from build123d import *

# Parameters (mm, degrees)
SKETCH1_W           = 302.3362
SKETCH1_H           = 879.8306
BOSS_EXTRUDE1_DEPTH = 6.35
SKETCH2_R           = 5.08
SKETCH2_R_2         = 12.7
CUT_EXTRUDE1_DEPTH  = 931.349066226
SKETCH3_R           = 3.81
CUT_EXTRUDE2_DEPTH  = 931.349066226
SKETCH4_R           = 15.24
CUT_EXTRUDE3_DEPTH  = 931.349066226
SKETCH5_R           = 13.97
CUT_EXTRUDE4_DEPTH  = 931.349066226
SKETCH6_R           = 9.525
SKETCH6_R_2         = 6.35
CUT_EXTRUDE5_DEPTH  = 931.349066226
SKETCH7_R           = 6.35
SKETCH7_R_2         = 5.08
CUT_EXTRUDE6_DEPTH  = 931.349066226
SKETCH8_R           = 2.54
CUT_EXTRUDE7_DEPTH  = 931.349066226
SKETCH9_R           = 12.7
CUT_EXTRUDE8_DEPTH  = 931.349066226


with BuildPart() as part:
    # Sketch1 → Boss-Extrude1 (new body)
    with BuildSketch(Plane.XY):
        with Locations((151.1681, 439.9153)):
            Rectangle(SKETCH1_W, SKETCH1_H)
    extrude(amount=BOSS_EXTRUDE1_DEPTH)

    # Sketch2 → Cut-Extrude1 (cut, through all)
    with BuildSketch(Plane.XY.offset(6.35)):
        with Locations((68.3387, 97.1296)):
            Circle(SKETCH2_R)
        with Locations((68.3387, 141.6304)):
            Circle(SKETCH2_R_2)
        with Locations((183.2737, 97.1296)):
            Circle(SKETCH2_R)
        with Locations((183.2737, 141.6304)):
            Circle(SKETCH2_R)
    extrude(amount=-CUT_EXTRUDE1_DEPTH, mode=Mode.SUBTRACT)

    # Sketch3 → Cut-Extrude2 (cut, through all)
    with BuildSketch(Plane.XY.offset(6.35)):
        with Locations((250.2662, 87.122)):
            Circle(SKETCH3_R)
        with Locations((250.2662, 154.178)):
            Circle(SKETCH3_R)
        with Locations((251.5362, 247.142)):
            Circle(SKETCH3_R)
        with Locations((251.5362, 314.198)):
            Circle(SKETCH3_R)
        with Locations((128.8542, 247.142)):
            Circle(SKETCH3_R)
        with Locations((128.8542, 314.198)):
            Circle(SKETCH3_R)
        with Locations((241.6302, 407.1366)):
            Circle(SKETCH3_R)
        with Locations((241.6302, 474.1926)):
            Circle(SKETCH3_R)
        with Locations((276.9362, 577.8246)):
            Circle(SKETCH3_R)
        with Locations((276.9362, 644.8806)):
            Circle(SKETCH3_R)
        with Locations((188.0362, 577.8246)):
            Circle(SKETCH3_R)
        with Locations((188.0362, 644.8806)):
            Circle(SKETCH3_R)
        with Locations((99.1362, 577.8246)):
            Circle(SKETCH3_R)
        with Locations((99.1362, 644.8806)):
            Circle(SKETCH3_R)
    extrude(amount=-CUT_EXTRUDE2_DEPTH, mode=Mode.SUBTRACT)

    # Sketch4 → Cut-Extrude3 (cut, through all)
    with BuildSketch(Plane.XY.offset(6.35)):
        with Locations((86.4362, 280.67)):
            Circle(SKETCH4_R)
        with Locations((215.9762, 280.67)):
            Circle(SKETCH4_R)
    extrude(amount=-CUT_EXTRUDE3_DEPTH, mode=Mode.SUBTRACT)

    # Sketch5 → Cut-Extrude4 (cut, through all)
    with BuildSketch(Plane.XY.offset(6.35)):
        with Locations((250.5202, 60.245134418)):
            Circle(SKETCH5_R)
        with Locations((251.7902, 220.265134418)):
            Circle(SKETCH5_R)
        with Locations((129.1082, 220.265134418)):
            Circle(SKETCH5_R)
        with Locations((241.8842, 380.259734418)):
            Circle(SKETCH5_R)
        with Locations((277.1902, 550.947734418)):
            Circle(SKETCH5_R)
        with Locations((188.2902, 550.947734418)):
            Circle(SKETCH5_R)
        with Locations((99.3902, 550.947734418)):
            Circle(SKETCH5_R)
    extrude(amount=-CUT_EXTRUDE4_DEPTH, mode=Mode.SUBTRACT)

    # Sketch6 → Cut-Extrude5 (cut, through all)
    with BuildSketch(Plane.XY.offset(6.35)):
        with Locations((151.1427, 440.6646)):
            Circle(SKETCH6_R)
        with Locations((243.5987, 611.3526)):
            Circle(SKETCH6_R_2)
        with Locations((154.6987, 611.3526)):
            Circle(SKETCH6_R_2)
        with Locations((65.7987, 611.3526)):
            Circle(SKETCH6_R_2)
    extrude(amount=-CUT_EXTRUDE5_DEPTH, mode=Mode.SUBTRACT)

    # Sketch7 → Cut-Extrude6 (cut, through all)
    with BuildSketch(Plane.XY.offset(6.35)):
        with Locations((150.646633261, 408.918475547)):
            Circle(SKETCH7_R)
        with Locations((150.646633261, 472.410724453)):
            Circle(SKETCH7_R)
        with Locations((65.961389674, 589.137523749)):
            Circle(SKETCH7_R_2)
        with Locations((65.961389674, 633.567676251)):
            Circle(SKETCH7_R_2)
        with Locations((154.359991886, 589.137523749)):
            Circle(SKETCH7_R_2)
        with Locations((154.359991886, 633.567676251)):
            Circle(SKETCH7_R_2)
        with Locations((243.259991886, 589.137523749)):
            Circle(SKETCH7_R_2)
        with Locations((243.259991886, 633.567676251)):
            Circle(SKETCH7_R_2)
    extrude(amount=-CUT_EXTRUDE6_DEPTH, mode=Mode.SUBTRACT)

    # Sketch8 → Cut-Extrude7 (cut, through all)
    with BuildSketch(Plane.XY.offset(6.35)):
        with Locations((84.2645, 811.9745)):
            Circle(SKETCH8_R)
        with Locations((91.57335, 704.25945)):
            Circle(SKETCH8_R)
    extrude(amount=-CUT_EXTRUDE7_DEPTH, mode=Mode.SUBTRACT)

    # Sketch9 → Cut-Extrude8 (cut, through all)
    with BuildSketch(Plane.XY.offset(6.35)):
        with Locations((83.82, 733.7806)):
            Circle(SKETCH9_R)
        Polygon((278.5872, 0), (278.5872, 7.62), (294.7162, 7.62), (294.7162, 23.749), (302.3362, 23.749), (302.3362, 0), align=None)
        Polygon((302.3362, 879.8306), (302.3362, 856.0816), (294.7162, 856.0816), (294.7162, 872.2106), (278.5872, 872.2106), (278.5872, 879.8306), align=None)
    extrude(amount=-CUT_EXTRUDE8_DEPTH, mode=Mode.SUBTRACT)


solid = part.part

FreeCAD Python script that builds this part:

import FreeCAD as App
import Part
import Sketcher

V = App.Vector
Q = App.Units.Quantity


def add_polygon(sketch, points):
    """Adds a closed chain of lines whose ends are joined by coincident constraints."""
    first, n = sketch.GeometryCount, len(points)
    for a, b in zip(points, points[1:] + points[:1]):
        sketch.addGeometry(Part.LineSegment(App.Vector(*a, 0), App.Vector(*b, 0)), False)
    for i in range(n):
        sketch.addConstraint(Sketcher.Constraint("Coincident", first + i, 2, first + (i + 1) % n, 1))

doc = App.newDocument("Part")
body = doc.addObject("PartDesign::Body", "Body")

# Sketch on XY plane
sketch1 = doc.addObject("Sketcher::SketchObject", "Sketch")
body.addObject(sketch1)
sketch1.AttachmentSupport = (doc.XY_Plane, [""])
sketch1.MapMode = "FlatFace"
add_polygon(sketch1, [(0, 880), (0, 0), (302, 0), (302, 880)])  # lines 0-3
sketch1.addConstraint([
    Sketcher.Constraint("Vertical", 0),
    Sketcher.Constraint("Horizontal", 1),
    Sketcher.Constraint("Vertical", 2),
    Sketcher.Constraint("Horizontal", 3),
    Sketcher.Constraint("Coincident", 0, 2, -1, 1),
    Sketcher.Constraint("DistanceX", 1, 1, 1, 2, Q("11.903 in")),
    Sketcher.Constraint("DistanceY", 0, 2, 0, 1, Q("34.639 in")),
])
pad1 = doc.addObject("PartDesign::Pad", "Pad")
body.addObject(pad1)
pad1.Profile = sketch1
pad1.Length = Q("0.25 in")

# Sketch on XY plane
sketch2 = doc.addObject("Sketcher::SketchObject", "Sketch001")
body.addObject(sketch2)
sketch2.AttachmentSupport = (doc.XY_Plane, [""])
sketch2.MapMode = "FlatFace"
sketch2.AttachmentOffset = App.Placement(V(0, 0, 0.25 * 25.4), App.Rotation())
sketch2.addGeometry([
    Part.Circle(V(68, 97, 0), V(0, 0, 1), 5),
    Part.Circle(V(68, 142, 0), V(0, 0, 1), 13),
    Part.Circle(V(183, 97, 0), V(0, 0, 1), 5),
    Part.Circle(V(183, 142, 0), V(0, 0, 1), 5),
], False)
sketch2.addConstraint([
    Sketcher.Constraint("Equal", 0, 2),
    Sketcher.Constraint("Equal", 2, 3),
    Sketcher.Constraint("Horizontal", 0, 3, 2, 3),
    Sketcher.Constraint("Horizontal", 1, 3, 3, 3),
    Sketcher.Constraint("Vertical", 0, 3, 1, 3),
    Sketcher.Constraint("Vertical", 2, 3, 3, 3),
    Sketcher.Constraint("Diameter", 1, Q("1 in")),
    Sketcher.Constraint("Diameter", 0, Q("0.4 in")),
    Sketcher.Constraint("DistanceY", -1, 1, 0, 3, Q("3.824 in")),
    Sketcher.Constraint("DistanceY", -1, 1, 1, 3, Q("5.576 in")),
    Sketcher.Constraint("DistanceX", 0, 3, 2, 3, Q("4.525 in")),
    Sketcher.Constraint("DistanceX", -1, 1, 0, 3, Q("2.6905 in")),
])
pocket1 = doc.addObject("PartDesign::Pocket", "Pocket")
body.addObject(pocket1)
pocket1.Profile = sketch2
pocket1.Type = "ThroughAll"

# Sketch on XY plane
sketch3 = doc.addObject("Sketcher::SketchObject", "Sketch002")
body.addObject(sketch3)
sketch3.AttachmentSupport = (doc.XY_Plane, [""])
sketch3.MapMode = "FlatFace"
sketch3.AttachmentOffset = App.Placement(V(0, 0, 0.25 * 25.4), App.Rotation())
sketch3.addGeometry([
    Part.Circle(V(250.3, 87.1, 0), V(0, 0, 1), 3.8),  # 0
    Part.Circle(V(250.3, 154.2, 0), V(0, 0, 1), 3.8),  # 1
    Part.Circle(V(251.5, 247.1, 0), V(0, 0, 1), 3.8),  # 2
    Part.Circle(V(251.5, 314.2, 0), V(0, 0, 1), 3.8),  # 3
    Part.Circle(V(128.9, 247.1, 0), V(0, 0, 1), 3.8),  # 4
    Part.Circle(V(128.9, 314.2, 0), V(0, 0, 1), 3.8),  # 5
    Part.Circle(V(241.6, 407.1, 0), V(0, 0, 1), 3.8),  # 6
    Part.Circle(V(241.6, 474.2, 0), V(0, 0, 1), 3.8),  # 7
    Part.Circle(V(276.9, 577.8, 0), V(0, 0, 1), 3.8),  # 8
    Part.Circle(V(276.9, 644.9, 0), V(0, 0, 1), 3.8),  # 9
    Part.Circle(V(188, 577.8, 0), V(0, 0, 1), 3.8),  # 10
    Part.Circle(V(188, 644.9, 0), V(0, 0, 1), 3.8),  # 11
    Part.Circle(V(99.1, 577.8, 0), V(0, 0, 1), 3.8),  # 12
    Part.Circle(V(99.1, 644.9, 0), V(0, 0, 1), 3.8),  # 13
], False)
sketch3.addConstraint([
    Sketcher.Constraint("Equal", 0, 1),
    Sketcher.Constraint("Equal", 1, 2),
    Sketcher.Constraint("Equal", 2, 3),
    Sketcher.Constraint("Equal", 3, 4),
    Sketcher.Constraint("Equal", 4, 5),
    Sketcher.Constraint("Equal", 5, 6),
    Sketcher.Constraint("Equal", 6, 7),
    Sketcher.Constraint("Equal", 7, 8),
    Sketcher.Constraint("Equal", 8, 9),
    Sketcher.Constraint("Equal", 9, 10),
    Sketcher.Constraint("Equal", 10, 11),
    Sketcher.Constraint("Equal", 11, 12),
    Sketcher.Constraint("Equal", 12, 13),
    Sketcher.Constraint("Horizontal", 2, 3, 4, 3),
    Sketcher.Constraint("Horizontal", 3, 3, 5, 3),
    Sketcher.Constraint("Horizontal", 8, 3, 10, 3),
    Sketcher.Constraint("Horizontal", 9, 3, 11, 3),
    Sketcher.Constraint("Horizontal", 10, 3, 12, 3),
    Sketcher.Constraint("Horizontal", 11, 3, 13, 3),
    Sketcher.Constraint("Vertical", 0, 3, 1, 3),
    Sketcher.Constraint("Vertical", 2, 3, 3, 3),
    Sketcher.Constraint("Vertical", 4, 3, 5, 3),
    Sketcher.Constraint("Vertical", 6, 3, 7, 3),
    Sketcher.Constraint("Vertical", 8, 3, 9, 3),
    Sketcher.Constraint("Vertical", 10, 3, 11, 3),
    Sketcher.Constraint("Vertical", 12, 3, 13, 3),
    Sketcher.Constraint("Diameter", 0, Q("0.3 in")),
    Sketcher.Constraint("DistanceX", 3, 3, 8, 3, Q("1 in")),
    Sketcher.Constraint("DistanceX", 12, 3, 8, 3, Q("7 in")),
    Sketcher.Constraint("DistanceY", 0, 3, 2, 3, Q("6.3 in")),
    Sketcher.Constraint("DistanceY", 1, 3, 3, 3, Q("6.3 in")),
    Sketcher.Constraint("DistanceX", 10, 3, 8, 3, Q("3.5 in")),
    Sketcher.Constraint("DistanceY", -1, 1, 0, 3, Q("3.43 in")),
    Sketcher.Constraint("DistanceY", -1, 1, 1, 3, Q("6.07 in")),
    Sketcher.Constraint("DistanceX", 1, 3, 2, 3, Q("0.05 in")),
    Sketcher.Constraint("DistanceX", 4, 3, 2, 3, Q("4.83 in")),
    Sketcher.Constraint("DistanceX", 6, 3, 3, 3, Q("0.39 in")),
    Sketcher.Constraint("DistanceY", 6, 3, 7, 3, Q("2.64 in")),
    Sketcher.Constraint("DistanceY", 7, 3, 8, 3, Q("4.08 in")),
    Sketcher.Constraint("DistanceY", 8, 3, 9, 3, Q("2.64 in")),
    Sketcher.Constraint("DistanceX", -1, 1, 0, 3, Q("9.853 in")),
    Sketcher.Constraint("DistanceY", -1, 1, 6, 3, Q("16.029 in")),
])
pocket2 = doc.addObject("PartDesign::Pocket", "Pocket001")
body.addObject(pocket2)
pocket2.Profile = sketch3
pocket2.Type = "ThroughAll"

# Sketch on XY plane
sketch4 = doc.addObject("Sketcher::SketchObject", "Sketch003")
body.addObject(sketch4)
sketch4.AttachmentSupport = (doc.XY_Plane, [""])
sketch4.MapMode = "FlatFace"
sketch4.AttachmentOffset = App.Placement(V(0, 0, 0.25 * 25.4), App.Rotation())
sketch4.addGeometry([
    Part.Circle(V(86, 281, 0), V(0, 0, 1), 15),
    Part.Circle(V(216, 281, 0), V(0, 0, 1), 15),
], False)
sketch4.addConstraint([
    Sketcher.Constraint("Equal", 0, 1),
    Sketcher.Constraint("Horizontal", 0, 3, 1, 3),
    Sketcher.Constraint("Diameter", 0, Q("1.2 in")),
    Sketcher.Constraint("DistanceX", 0, 3, 1, 3, Q("5.1 in")),
    Sketcher.Constraint("DistanceY", -1, 1, 0, 3, Q("11.05 in")),
    Sketcher.Constraint("DistanceX", -1, 1, 0, 3, Q("3.403 in")),
])
pocket3 = doc.addObject("PartDesign::Pocket", "Pocket002")
body.addObject(pocket3)
pocket3.Profile = sketch4
pocket3.Type = "ThroughAll"

# Sketch on XY plane
sketch5 = doc.addObject("Sketcher::SketchObject", "Sketch004")
body.addObject(sketch5)
sketch5.AttachmentSupport = (doc.XY_Plane, [""])
sketch5.MapMode = "FlatFace"
sketch5.AttachmentOffset = App.Placement(V(0, 0, 0.25 * 25.4), App.Rotation())
sketch5.addGeometry([
    Part.Circle(V(251, 60, 0), V(0, 0, 1), 14),  # 0
    Part.Circle(V(252, 220, 0), V(0, 0, 1), 14),  # 1
    Part.Circle(V(129, 220, 0), V(0, 0, 1), 14),  # 2
    Part.Circle(V(242, 380, 0), V(0, 0, 1), 14),  # 3
    Part.Circle(V(277, 551, 0), V(0, 0, 1), 14),  # 4
    Part.Circle(V(188, 551, 0), V(0, 0, 1), 14),  # 5
    Part.Circle(V(99, 551, 0), V(0, 0, 1), 14),  # 6
], False)
sketch5.addConstraint([
    Sketcher.Constraint("Equal", 0, 1),
    Sketcher.Constraint("Equal", 1, 2),
    Sketcher.Constraint("Equal", 2, 3),
    Sketcher.Constraint("Equal", 3, 4),
    Sketcher.Constraint("Equal", 4, 5),
    Sketcher.Constraint("Equal", 5, 6),
    Sketcher.Constraint("Horizontal", 1, 3, 2, 3),
    Sketcher.Constraint("Horizontal", 4, 3, 5, 3),
    Sketcher.Constraint("Horizontal", 5, 3, 6, 3),
    Sketcher.Constraint("Diameter", 0, Q("1.1 in")),
    Sketcher.Constraint("DistanceX", 1, 3, 4, 3, Q("1 in")),
    Sketcher.Constraint("DistanceX", 6, 3, 4, 3, Q("7 in")),
    Sketcher.Constraint("DistanceY", 0, 3, 1, 3, Q("6.3 in")),
    Sketcher.Constraint("DistanceX", 5, 3, 4, 3, Q("3.5 in")),
    Sketcher.Constraint("DistanceX", 0, 3, 1, 3, Q("0.05 in")),
    Sketcher.Constraint("DistanceX", 2, 3, 1, 3, Q("4.83 in")),
    Sketcher.Constraint("DistanceX", 3, 3, 1, 3, Q("0.39 in")),
    Sketcher.Constraint("DistanceY", 3, 3, 4, 3, Q("6.72 in")),
    Sketcher.Constraint("DistanceX", -1, 1, 0, 3, Q("9.863 in")),
    Sketcher.Constraint("DistanceY", 1, 3, 3, 3, Q("6.299 in")),
    Sketcher.Constraint("DistanceY", -1, 1, 0, 3, 60.245134),
])
pocket4 = doc.addObject("PartDesign::Pocket", "Pocket003")
body.addObject(pocket4)
pocket4.Profile = sketch5
pocket4.Type = "ThroughAll"

# Sketch on XY plane
sketch6 = doc.addObject("Sketcher::SketchObject", "Sketch005")
body.addObject(sketch6)
sketch6.AttachmentSupport = (doc.XY_Plane, [""])
sketch6.MapMode = "FlatFace"
sketch6.AttachmentOffset = App.Placement(V(0, 0, 0.25 * 25.4), App.Rotation())
sketch6.addGeometry([
    Part.Circle(V(151, 441, 0), V(0, 0, 1), 10),
    Part.Circle(V(244, 611, 0), V(0, 0, 1), 6),
    Part.Circle(V(155, 611, 0), V(0, 0, 1), 6),
    Part.Circle(V(66, 611, 0), V(0, 0, 1), 6),
], False)
sketch6.addConstraint([
    Sketcher.Constraint("Equal", 1, 2),
    Sketcher.Constraint("Equal", 2, 3),
    Sketcher.Constraint("Horizontal", 1, 3, 2, 3),
    Sketcher.Constraint("Horizontal", 2, 3, 3, 3),
    Sketcher.Constraint("Diameter", 1, Q("0.5 in")),
    Sketcher.Constraint("Diameter", 0, Q("0.75 in")),
    Sketcher.Constraint("DistanceX", 3, 3, 1, 3, Q("7 in")),
    Sketcher.Constraint("DistanceX", 2, 3, 1, 3, Q("3.5 in")),
    Sketcher.Constraint("DistanceX", 0, 3, 1, 3, Q("3.64 in")),
    Sketcher.Constraint("DistanceY", 0, 3, 1, 3, Q("6.72 in")),
    Sketcher.Constraint("DistanceY", -1, 1, 0, 3, Q("17.349 in")),
    Sketcher.Constraint("DistanceX", -1, 1, 0, 3, Q("5.9505 in")),
])
pocket5 = doc.addObject("PartDesign::Pocket", "Pocket004")
body.addObject(pocket5)
pocket5.Profile = sketch6
pocket5.Type = "ThroughAll"

# Sketch on XY plane
sketch7 = doc.addObject("Sketcher::SketchObject", "Sketch006")
body.addObject(sketch7)
sketch7.AttachmentSupport = (doc.XY_Plane, [""])
sketch7.MapMode = "FlatFace"
sketch7.AttachmentOffset = App.Placement(V(0, 0, 0.25 * 25.4), App.Rotation())
sketch7.addGeometry([
    Part.Circle(V(151, 409, 0), V(0, 0, 1), 6),  # 0
    Part.Circle(V(151, 472, 0), V(0, 0, 1), 6),  # 1
    Part.Circle(V(66, 589, 0), V(0, 0, 1), 5),  # 2
    Part.Circle(V(66, 634, 0), V(0, 0, 1), 5),  # 3
    Part.Circle(V(154, 589, 0), V(0, 0, 1), 5),  # 4
    Part.Circle(V(154, 634, 0), V(0, 0, 1), 5),  # 5
    Part.Circle(V(243, 589, 0), V(0, 0, 1), 5),  # 6
    Part.Circle(V(243, 634, 0), V(0, 0, 1), 5),  # 7
], False)
sketch7.addConstraint([
    Sketcher.Constraint("Equal", 0, 1),
    Sketcher.Constraint("Equal", 2, 3),
    Sketcher.Constraint("Equal", 3, 4),
    Sketcher.Constraint("Equal", 4, 5),
    Sketcher.Constraint("Equal", 5, 6),
    Sketcher.Constraint("Equal", 6, 7),
    Sketcher.Constraint("Horizontal", 2, 3, 4, 3),
    Sketcher.Constraint("Horizontal", 3, 3, 5, 3),
    Sketcher.Constraint("Horizontal", 4, 3, 6, 3),
    Sketcher.Constraint("Horizontal", 5, 3, 7, 3),
    Sketcher.Constraint("Vertical", 0, 3, 1, 3),
    Sketcher.Constraint("Vertical", 2, 3, 3, 3),
    Sketcher.Constraint("Vertical", 4, 3, 5, 3),
    Sketcher.Constraint("Vertical", 6, 3, 7, 3),
    Sketcher.Constraint("Diameter", 0, Q("0.5 in")),
    Sketcher.Constraint("Diameter", 2, Q("0.4 in")),
    Sketcher.Constraint("DistanceX", 4, 3, 6, 3, Q("3.5 in")),
    Sketcher.Constraint("DistanceY", 1, 3, 2, 3, 116.726799),
    Sketcher.Constraint("DistanceY", 0, 3, 3, 3, 224.649201),
    Sketcher.Constraint("DistanceX", -1, 1, 2, 3, 65.96139),
    Sketcher.Constraint("DistanceX", -1, 1, 4, 3, 154.359992),
    Sketcher.Constraint("DistanceY", 0, 3, 1, 3, 63.492249),
    Sketcher.Constraint("DistanceX", 1, 3, 4, 3, 3.713359),
    Sketcher.Constraint("DistanceY", -1, 1, 0, 3, 408.918476),
])
pocket6 = doc.addObject("PartDesign::Pocket", "Pocket005")
body.addObject(pocket6)
pocket6.Profile = sketch7
pocket6.Type = "ThroughAll"

# Sketch on XY plane
sketch8 = doc.addObject("Sketcher::SketchObject", "Sketch007")
body.addObject(sketch8)
sketch8.AttachmentSupport = (doc.XY_Plane, [""])
sketch8.MapMode = "FlatFace"
sketch8.AttachmentOffset = App.Placement(V(0, 0, 0.25 * 25.4), App.Rotation())
sketch8.addGeometry([
    Part.Circle(V(84.3, 812, 0), V(0, 0, 1), 2.5),
    Part.Circle(V(91.6, 704.3, 0), V(0, 0, 1), 2.5),
], False)
sketch8.addConstraint([
    Sketcher.Constraint("Equal", 0, 1),
    Sketcher.Constraint("Diameter", 0, Q("0.2 in")),
    Sketcher.Constraint("DistanceX", -1, 1, 0, 3, Q("3.3175 in")),
    Sketcher.Constraint("DistanceY", -1, 1, 0, 3, Q("31.9675 in")),
    Sketcher.Constraint("DistanceX", -1, 1, 1, 3, 91.57335),
    Sketcher.Constraint("DistanceY", -1, 1, 1, 3, 704.25945),
])
pocket7 = doc.addObject("PartDesign::Pocket", "Pocket006")
body.addObject(pocket7)
pocket7.Profile = sketch8
pocket7.Type = "ThroughAll"

# Sketch on XY plane
sketch9 = doc.addObject("Sketcher::SketchObject", "Sketch008")
body.addObject(sketch9)
sketch9.AttachmentSupport = (doc.XY_Plane, [""])
sketch9.MapMode = "FlatFace"
sketch9.AttachmentOffset = App.Placement(V(0, 0, 0.25 * 25.4), App.Rotation())
sketch9.addGeometry(Part.Circle(V(84, 734, 0), V(0, 0, 1), 13), False)  # 0
add_polygon(sketch9, [(279, 8), (279, 0), (302, 0), (302, 24), (295, 24), (295, 8)])  # lines 1-6
add_polygon(sketch9, [(302, 856), (302, 880), (279, 880), (279, 872), (295, 872), (295, 856)])  # lines 7-12
sketch9.addConstraint([
    Sketcher.Constraint("Vertical", 1),
    Sketcher.Constraint("Horizontal", 2),
    Sketcher.Constraint("Vertical", 3),
    Sketcher.Constraint("Horizontal", 4),
    Sketcher.Constraint("Vertical", 5),
    Sketcher.Constraint("Horizontal", 6),
    Sketcher.Constraint("Vertical", 7),
    Sketcher.Constraint("Horizontal", 8),
    Sketcher.Constraint("Vertical", 9),
    Sketcher.Constraint("Horizontal", 10),
    Sketcher.Constraint("Vertical", 11),
    Sketcher.Constraint("Horizontal", 12),
    Sketcher.Constraint("PointOnObject", 1, 2, -1),
    Sketcher.Constraint("Vertical", 3, 2, 7, 2),
    Sketcher.Constraint("Vertical", 6, 2, 8, 2),
    Sketcher.Constraint("Vertical", 5, 2, 10, 2),
    Sketcher.Constraint("Equal", 12, 1),
    Sketcher.Constraint("Equal", 8, 3),
    Sketcher.Constraint("Equal", 3, 7),
    Sketcher.Constraint("Equal", 1, 9),
    Sketcher.Constraint("Diameter", 0, Q("1 in")),
    Sketcher.Constraint("DistanceX", 4, 2, 4, 1, Q("0.3 in")),
    Sketcher.Constraint("DistanceX", -1, 1, 0, 3, Q("3.3 in")),
    Sketcher.Constraint("DistanceX", 2, 1, 2, 2, Q("0.935 in")),
    Sketcher.Constraint("DistanceY", 0, 3, 7, 2, Q("5.75 in")),
    Sketcher.Constraint("DistanceY", -1, 1, 0, 3, Q("28.889 in")),
    Sketcher.Constraint("DistanceX", -1, 1, 1, 2, Q("10.968 in")),
])
pocket8 = doc.addObject("PartDesign::Pocket", "Pocket007")
body.addObject(pocket8)
pocket8.Profile = sketch9
pocket8.Type = "ThroughAll"

doc.recompute()
